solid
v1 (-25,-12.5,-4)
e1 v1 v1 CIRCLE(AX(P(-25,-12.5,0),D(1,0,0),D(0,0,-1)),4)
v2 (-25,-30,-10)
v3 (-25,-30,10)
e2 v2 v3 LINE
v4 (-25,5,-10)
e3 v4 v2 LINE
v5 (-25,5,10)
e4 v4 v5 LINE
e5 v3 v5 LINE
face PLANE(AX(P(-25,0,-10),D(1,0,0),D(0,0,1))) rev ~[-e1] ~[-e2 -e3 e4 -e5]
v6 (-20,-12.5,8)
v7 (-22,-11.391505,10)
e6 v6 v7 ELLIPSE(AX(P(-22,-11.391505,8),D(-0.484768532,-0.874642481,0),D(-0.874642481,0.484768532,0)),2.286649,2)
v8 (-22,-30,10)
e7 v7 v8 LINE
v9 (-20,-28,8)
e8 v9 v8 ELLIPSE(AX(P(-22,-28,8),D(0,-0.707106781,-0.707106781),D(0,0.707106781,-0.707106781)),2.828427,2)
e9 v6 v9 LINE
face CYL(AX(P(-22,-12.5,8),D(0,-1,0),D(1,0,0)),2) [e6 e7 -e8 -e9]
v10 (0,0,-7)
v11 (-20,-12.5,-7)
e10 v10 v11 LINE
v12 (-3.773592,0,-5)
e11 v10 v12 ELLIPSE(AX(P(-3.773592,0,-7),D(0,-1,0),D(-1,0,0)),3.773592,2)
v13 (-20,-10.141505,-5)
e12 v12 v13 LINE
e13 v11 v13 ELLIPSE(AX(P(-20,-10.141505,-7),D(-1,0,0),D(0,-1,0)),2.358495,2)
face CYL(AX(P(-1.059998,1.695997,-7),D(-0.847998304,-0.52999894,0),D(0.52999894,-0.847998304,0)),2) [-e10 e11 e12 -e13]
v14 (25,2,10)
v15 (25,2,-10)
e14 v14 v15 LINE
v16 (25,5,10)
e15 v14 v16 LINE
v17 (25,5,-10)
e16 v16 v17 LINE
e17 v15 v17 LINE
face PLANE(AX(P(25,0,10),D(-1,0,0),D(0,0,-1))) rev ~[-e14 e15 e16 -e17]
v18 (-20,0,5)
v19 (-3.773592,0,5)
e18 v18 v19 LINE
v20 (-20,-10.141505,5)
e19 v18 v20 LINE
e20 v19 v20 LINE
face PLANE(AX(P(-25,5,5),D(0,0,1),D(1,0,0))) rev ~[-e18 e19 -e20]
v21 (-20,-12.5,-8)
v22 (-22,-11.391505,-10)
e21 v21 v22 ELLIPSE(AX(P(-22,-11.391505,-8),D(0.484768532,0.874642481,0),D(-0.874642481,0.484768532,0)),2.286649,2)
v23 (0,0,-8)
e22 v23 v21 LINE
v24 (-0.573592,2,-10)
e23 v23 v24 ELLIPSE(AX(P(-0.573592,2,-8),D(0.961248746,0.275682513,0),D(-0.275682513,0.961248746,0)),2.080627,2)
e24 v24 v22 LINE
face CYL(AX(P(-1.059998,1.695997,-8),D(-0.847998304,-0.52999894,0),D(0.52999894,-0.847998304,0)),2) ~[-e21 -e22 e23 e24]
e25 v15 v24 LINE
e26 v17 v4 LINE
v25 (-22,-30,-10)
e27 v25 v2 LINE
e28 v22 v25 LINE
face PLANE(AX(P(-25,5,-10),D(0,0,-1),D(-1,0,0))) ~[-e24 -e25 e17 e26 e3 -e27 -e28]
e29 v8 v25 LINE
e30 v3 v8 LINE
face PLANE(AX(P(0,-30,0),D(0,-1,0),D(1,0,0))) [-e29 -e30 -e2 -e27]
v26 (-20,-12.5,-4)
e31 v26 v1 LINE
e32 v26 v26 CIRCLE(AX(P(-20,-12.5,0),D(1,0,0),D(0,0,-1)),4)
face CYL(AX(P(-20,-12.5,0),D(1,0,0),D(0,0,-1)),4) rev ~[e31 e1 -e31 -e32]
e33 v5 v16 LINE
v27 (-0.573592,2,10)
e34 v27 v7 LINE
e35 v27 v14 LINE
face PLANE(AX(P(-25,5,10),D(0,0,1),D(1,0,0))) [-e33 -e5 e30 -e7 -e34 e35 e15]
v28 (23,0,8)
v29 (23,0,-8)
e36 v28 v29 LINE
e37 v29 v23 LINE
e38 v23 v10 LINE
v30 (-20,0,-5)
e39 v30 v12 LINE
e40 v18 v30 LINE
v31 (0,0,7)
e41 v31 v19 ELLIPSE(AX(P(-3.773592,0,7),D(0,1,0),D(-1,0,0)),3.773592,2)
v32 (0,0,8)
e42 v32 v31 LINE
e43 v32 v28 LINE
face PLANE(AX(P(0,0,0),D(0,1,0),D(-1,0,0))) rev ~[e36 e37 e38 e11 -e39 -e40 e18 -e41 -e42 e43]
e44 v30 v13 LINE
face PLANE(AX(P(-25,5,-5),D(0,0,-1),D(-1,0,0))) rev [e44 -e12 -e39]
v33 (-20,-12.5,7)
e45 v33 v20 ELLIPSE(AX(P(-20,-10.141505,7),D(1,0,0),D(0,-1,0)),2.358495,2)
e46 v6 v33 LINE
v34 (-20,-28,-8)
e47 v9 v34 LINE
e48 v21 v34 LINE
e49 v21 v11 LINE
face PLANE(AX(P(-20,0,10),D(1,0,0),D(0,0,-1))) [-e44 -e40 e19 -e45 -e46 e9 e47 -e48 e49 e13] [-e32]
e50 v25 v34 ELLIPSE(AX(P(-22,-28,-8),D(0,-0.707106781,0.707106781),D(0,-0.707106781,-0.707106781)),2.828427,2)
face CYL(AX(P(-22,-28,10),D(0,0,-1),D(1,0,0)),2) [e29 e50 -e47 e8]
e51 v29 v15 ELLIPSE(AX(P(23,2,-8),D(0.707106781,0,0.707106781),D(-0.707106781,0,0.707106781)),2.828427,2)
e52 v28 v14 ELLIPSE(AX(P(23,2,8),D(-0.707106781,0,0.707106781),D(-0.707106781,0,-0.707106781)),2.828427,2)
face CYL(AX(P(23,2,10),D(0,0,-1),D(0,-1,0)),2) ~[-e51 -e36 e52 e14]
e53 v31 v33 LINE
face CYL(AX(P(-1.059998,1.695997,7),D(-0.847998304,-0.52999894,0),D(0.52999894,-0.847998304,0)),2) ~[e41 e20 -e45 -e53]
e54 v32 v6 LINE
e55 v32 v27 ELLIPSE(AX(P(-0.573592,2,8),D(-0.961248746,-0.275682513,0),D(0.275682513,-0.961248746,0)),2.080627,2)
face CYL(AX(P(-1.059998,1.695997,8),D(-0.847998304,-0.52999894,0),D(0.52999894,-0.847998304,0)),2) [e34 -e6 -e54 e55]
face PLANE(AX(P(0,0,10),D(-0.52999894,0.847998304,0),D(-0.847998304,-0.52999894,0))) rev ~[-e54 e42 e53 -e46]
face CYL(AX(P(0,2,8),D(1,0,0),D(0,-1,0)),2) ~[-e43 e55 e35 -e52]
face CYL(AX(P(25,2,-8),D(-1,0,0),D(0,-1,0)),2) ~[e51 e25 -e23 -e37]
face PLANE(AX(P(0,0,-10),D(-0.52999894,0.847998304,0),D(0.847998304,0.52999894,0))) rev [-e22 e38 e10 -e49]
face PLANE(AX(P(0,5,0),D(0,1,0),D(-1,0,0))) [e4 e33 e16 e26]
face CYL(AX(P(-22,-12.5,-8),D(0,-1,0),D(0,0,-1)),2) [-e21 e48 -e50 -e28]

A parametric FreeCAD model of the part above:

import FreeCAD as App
import Part
import Sketcher

V = App.Vector
Q = App.Units.Quantity


def edges_at(feature, points):
    """Names of the edges that pass closest to the given points."""
    edges = feature.Shape.Edges
    near = lambda p: min(range(len(edges)), key=lambda i: edges[i].distToShape(Part.Vertex(*p))[0])
    return sorted({f"Edge{near(p) + 1}" for p in points})


def add_polygon(sketch, points):
    """Adds a closed chain of lines whose ends are joined by coincident constraints."""
    first, n = sketch.GeometryCount, len(points)
    for a, b in zip(points, points[1:] + points[:1]):
        sketch.addGeometry(Part.LineSegment(App.Vector(*a, 0), App.Vector(*b, 0)), False)
    for i in range(n):
        sketch.addConstraint(Sketcher.Constraint("Coincident", first + i, 2, first + (i + 1) % n, 1))

doc = App.newDocument("Part")
params = doc.addObject("Spreadsheet::Sheet", "Params")
for row, (alias, value) in enumerate([
    ("sketch1_width", "50 mm"),
    ("sketch1_height", "20 mm"),
    ("pad1_length", "5 mm"),
    ("sketch2_width", "5 mm"),
    ("sketch2_height", "20 mm"),
    ("pad2_length", "30 mm"),
    ("sketch3_width", "20 mm"),
    ("sketch3_height", "12.5 mm"),
    ("pad3_length", "5 mm"),
    ("sketch4_diameter", "8 mm"),
    ("pocket1_length", "5 mm"),
    ("fillet_radius", "2 mm"),
    ("fillet2_radius", "2 mm"),
], start=1):
    params.set(f"A{row}", alias)
    params.set(f"B{row}", "=" + value)
    params.setAlias(f"B{row}", alias)

body = doc.addObject("PartDesign::Body", "Body")

# Sketch on XZ plane
sketch1 = body.newObject("Sketcher::SketchObject", "Sketch")
sketch1.AttachmentSupport = (doc.getObject("XZ_Plane"), [""])
sketch1.MapMode = "FlatFace"
add_polygon(sketch1, [(-25, -10), (-25, 10), (25, 10), (25, -10)])  # lines 0-3
sketch1.addConstraint(Sketcher.Constraint("Vertical", 0))
sketch1.addConstraint(Sketcher.Constraint("Horizontal", 1))
sketch1.addConstraint(Sketcher.Constraint("Vertical", 2))
sketch1.addConstraint(Sketcher.Constraint("Horizontal", 3))
sketch1.addConstraint(Sketcher.Constraint("Symmetric", 0, 2, 2, 2, -1, 1))
sketch1.addConstraint(Sketcher.Constraint("DistanceX", 1, 1, 1, 2, Q("50 mm")))
sketch1.addConstraint(Sketcher.Constraint("DistanceY", 0, 1, 0, 2, Q("20 mm")))
sketch1.setExpression("Constraints[9]", "Params.sketch1_width")
sketch1.setExpression("Constraints[10]", "Params.sketch1_height")
pad1 = body.newObject("PartDesign::Pad", "Pad")
pad1.Profile = sketch1
pad1.setExpression("Length", "Params.pad1_length")
pad1.Reversed = True

# Sketch on XZ plane
sketch2 = body.newObject("Sketcher::SketchObject", "Sketch001")
sketch2.AttachmentSupport = (doc.getObject("XZ_Plane"), [""])
sketch2.MapMode = "FlatFace"
add_polygon(sketch2, [(-25, 10), (-25, -10), (-20, -10), (-20, 10)])  # lines 0-3
sketch2.addConstraint(Sketcher.Constraint("Vertical", 0))
sketch2.addConstraint(Sketcher.Constraint("Horizontal", 1))
sketch2.addConstraint(Sketcher.Constraint("Vertical", 2))
sketch2.addConstraint(Sketcher.Constraint("Horizontal", 3))
sketch2.addConstraint(Sketcher.Constraint("DistanceX", 1, 1, 1, 2, Q("5 mm")))
sketch2.addConstraint(Sketcher.Constraint("DistanceY", 0, 2, 0, 1, Q("20 mm")))
sketch2.addConstraint(Sketcher.Constraint("DistanceX", 0, 2, -1, 1, Q("25 mm")))
sketch2.addConstraint(Sketcher.Constraint("DistanceY", 0, 2, -1, 1, Q("10 mm")))
sketch2.setExpression("Constraints[8]", "Params.sketch2_width")
sketch2.setExpression("Constraints[9]", "Params.sketch2_height")
pad2 = body.newObject("PartDesign::Pad", "Pad001")
pad2.Profile = sketch2
pad2.setExpression("Length", "Params.pad2_length")

# Sketch on XY plane
sketch3 = body.newObject("Sketcher::SketchObject", "Sketch002")
sketch3.AttachmentSupport = (doc.getObject("XY_Plane"), [""])
sketch3.MapMode = "FlatFace"
sketch3.AttachmentOffset = App.Placement(V(0, 0, 10), App.Rotation())
add_polygon(sketch3, [(0, 0), (-20, 0), (-20, -12)])  # lines 0-2
sketch3.addConstraint(Sketcher.Constraint("Horizontal", 0))
sketch3.addConstraint(Sketcher.Constraint("Vertical", 1))
sketch3.addConstraint(Sketcher.Constraint("Coincident", 2, 2, -1, 1))
sketch3.addConstraint(Sketcher.Constraint("DistanceX", 0, 2, 0, 1, Q("20 mm")))
sketch3.addConstraint(Sketcher.Constraint("DistanceY", 1, 2, 1, 1, Q("12.5 mm")))
sketch3.setExpression("Constraints[6]", "Params.sketch3_width")
sketch3.setExpression("Constraints[7]", "Params.sketch3_height")
pad3 = body.newObject("PartDesign::Pad", "Pad002")
pad3.Profile = sketch3
pad3.setExpression("Length", "Params.pad3_length")
pad3.Reversed = True
doc.recompute()

mirrored = body.newObject("PartDesign::Mirrored", "Mirrored")
mirrored.Originals = [pad3]
mirrored.MirrorPlane = (doc.getObject("XY_Plane"), [""])
body.Tip = mirrored

# Sketch on YZ plane
sketch4 = body.newObject("Sketcher::SketchObject", "Sketch003")
sketch4.AttachmentSupport = (doc.getObject("YZ_Plane"), [""])
sketch4.MapMode = "FlatFace"
sketch4.AttachmentOffset = App.Placement(V(0, 0, -20), App.Rotation())
sketch4.addGeometry(Part.Circle(V(-12.5, 0, 0), V(0, 0, 1), 4), False)
sketch4.addConstraint(Sketcher.Constraint("PointOnObject", 0, 3, -1))
sketch4.addConstraint(Sketcher.Constraint("Diameter", 0, Q("8 mm")))
sketch4.addConstraint(Sketcher.Constraint("DistanceX", 0, 3, -1, 1, Q("12.5 mm")))
sketch4.setExpression("Constraints[1]", "Params.sketch4_diameter")
pocket1 = body.newObject("PartDesign::Pocket", "Pocket")
pocket1.Profile = sketch4
pocket1.setExpression("Length", "Params.pocket1_length")
doc.recompute()

fillet = body.newObject("PartDesign::Fillet", "Fillet")
fillet.Base = (pocket1, edges_at(pocket1, [(-10, -6.25, 5), (-10, -6.25, -5)]))
fillet.setExpression("Radius", "Params.fillet_radius")
doc.recompute()

fillet2 = body.newObject("PartDesign::Fillet", "Fillet001")
fillet2.Base = (fillet, edges_at(fillet, [
    (12.5, 0, -10),
    (-10, -6.25, -10),
    (25, 0, 0),
    (12.5, 0, 10),
    (-10, -6.25, 10),
    (-20, -21.25, -10),
    (-20, -30, 0),
    (-20, -21.25, 10),
]))
fillet2.setExpression("Radius", "Params.fillet2_radius")

doc.recompute()
